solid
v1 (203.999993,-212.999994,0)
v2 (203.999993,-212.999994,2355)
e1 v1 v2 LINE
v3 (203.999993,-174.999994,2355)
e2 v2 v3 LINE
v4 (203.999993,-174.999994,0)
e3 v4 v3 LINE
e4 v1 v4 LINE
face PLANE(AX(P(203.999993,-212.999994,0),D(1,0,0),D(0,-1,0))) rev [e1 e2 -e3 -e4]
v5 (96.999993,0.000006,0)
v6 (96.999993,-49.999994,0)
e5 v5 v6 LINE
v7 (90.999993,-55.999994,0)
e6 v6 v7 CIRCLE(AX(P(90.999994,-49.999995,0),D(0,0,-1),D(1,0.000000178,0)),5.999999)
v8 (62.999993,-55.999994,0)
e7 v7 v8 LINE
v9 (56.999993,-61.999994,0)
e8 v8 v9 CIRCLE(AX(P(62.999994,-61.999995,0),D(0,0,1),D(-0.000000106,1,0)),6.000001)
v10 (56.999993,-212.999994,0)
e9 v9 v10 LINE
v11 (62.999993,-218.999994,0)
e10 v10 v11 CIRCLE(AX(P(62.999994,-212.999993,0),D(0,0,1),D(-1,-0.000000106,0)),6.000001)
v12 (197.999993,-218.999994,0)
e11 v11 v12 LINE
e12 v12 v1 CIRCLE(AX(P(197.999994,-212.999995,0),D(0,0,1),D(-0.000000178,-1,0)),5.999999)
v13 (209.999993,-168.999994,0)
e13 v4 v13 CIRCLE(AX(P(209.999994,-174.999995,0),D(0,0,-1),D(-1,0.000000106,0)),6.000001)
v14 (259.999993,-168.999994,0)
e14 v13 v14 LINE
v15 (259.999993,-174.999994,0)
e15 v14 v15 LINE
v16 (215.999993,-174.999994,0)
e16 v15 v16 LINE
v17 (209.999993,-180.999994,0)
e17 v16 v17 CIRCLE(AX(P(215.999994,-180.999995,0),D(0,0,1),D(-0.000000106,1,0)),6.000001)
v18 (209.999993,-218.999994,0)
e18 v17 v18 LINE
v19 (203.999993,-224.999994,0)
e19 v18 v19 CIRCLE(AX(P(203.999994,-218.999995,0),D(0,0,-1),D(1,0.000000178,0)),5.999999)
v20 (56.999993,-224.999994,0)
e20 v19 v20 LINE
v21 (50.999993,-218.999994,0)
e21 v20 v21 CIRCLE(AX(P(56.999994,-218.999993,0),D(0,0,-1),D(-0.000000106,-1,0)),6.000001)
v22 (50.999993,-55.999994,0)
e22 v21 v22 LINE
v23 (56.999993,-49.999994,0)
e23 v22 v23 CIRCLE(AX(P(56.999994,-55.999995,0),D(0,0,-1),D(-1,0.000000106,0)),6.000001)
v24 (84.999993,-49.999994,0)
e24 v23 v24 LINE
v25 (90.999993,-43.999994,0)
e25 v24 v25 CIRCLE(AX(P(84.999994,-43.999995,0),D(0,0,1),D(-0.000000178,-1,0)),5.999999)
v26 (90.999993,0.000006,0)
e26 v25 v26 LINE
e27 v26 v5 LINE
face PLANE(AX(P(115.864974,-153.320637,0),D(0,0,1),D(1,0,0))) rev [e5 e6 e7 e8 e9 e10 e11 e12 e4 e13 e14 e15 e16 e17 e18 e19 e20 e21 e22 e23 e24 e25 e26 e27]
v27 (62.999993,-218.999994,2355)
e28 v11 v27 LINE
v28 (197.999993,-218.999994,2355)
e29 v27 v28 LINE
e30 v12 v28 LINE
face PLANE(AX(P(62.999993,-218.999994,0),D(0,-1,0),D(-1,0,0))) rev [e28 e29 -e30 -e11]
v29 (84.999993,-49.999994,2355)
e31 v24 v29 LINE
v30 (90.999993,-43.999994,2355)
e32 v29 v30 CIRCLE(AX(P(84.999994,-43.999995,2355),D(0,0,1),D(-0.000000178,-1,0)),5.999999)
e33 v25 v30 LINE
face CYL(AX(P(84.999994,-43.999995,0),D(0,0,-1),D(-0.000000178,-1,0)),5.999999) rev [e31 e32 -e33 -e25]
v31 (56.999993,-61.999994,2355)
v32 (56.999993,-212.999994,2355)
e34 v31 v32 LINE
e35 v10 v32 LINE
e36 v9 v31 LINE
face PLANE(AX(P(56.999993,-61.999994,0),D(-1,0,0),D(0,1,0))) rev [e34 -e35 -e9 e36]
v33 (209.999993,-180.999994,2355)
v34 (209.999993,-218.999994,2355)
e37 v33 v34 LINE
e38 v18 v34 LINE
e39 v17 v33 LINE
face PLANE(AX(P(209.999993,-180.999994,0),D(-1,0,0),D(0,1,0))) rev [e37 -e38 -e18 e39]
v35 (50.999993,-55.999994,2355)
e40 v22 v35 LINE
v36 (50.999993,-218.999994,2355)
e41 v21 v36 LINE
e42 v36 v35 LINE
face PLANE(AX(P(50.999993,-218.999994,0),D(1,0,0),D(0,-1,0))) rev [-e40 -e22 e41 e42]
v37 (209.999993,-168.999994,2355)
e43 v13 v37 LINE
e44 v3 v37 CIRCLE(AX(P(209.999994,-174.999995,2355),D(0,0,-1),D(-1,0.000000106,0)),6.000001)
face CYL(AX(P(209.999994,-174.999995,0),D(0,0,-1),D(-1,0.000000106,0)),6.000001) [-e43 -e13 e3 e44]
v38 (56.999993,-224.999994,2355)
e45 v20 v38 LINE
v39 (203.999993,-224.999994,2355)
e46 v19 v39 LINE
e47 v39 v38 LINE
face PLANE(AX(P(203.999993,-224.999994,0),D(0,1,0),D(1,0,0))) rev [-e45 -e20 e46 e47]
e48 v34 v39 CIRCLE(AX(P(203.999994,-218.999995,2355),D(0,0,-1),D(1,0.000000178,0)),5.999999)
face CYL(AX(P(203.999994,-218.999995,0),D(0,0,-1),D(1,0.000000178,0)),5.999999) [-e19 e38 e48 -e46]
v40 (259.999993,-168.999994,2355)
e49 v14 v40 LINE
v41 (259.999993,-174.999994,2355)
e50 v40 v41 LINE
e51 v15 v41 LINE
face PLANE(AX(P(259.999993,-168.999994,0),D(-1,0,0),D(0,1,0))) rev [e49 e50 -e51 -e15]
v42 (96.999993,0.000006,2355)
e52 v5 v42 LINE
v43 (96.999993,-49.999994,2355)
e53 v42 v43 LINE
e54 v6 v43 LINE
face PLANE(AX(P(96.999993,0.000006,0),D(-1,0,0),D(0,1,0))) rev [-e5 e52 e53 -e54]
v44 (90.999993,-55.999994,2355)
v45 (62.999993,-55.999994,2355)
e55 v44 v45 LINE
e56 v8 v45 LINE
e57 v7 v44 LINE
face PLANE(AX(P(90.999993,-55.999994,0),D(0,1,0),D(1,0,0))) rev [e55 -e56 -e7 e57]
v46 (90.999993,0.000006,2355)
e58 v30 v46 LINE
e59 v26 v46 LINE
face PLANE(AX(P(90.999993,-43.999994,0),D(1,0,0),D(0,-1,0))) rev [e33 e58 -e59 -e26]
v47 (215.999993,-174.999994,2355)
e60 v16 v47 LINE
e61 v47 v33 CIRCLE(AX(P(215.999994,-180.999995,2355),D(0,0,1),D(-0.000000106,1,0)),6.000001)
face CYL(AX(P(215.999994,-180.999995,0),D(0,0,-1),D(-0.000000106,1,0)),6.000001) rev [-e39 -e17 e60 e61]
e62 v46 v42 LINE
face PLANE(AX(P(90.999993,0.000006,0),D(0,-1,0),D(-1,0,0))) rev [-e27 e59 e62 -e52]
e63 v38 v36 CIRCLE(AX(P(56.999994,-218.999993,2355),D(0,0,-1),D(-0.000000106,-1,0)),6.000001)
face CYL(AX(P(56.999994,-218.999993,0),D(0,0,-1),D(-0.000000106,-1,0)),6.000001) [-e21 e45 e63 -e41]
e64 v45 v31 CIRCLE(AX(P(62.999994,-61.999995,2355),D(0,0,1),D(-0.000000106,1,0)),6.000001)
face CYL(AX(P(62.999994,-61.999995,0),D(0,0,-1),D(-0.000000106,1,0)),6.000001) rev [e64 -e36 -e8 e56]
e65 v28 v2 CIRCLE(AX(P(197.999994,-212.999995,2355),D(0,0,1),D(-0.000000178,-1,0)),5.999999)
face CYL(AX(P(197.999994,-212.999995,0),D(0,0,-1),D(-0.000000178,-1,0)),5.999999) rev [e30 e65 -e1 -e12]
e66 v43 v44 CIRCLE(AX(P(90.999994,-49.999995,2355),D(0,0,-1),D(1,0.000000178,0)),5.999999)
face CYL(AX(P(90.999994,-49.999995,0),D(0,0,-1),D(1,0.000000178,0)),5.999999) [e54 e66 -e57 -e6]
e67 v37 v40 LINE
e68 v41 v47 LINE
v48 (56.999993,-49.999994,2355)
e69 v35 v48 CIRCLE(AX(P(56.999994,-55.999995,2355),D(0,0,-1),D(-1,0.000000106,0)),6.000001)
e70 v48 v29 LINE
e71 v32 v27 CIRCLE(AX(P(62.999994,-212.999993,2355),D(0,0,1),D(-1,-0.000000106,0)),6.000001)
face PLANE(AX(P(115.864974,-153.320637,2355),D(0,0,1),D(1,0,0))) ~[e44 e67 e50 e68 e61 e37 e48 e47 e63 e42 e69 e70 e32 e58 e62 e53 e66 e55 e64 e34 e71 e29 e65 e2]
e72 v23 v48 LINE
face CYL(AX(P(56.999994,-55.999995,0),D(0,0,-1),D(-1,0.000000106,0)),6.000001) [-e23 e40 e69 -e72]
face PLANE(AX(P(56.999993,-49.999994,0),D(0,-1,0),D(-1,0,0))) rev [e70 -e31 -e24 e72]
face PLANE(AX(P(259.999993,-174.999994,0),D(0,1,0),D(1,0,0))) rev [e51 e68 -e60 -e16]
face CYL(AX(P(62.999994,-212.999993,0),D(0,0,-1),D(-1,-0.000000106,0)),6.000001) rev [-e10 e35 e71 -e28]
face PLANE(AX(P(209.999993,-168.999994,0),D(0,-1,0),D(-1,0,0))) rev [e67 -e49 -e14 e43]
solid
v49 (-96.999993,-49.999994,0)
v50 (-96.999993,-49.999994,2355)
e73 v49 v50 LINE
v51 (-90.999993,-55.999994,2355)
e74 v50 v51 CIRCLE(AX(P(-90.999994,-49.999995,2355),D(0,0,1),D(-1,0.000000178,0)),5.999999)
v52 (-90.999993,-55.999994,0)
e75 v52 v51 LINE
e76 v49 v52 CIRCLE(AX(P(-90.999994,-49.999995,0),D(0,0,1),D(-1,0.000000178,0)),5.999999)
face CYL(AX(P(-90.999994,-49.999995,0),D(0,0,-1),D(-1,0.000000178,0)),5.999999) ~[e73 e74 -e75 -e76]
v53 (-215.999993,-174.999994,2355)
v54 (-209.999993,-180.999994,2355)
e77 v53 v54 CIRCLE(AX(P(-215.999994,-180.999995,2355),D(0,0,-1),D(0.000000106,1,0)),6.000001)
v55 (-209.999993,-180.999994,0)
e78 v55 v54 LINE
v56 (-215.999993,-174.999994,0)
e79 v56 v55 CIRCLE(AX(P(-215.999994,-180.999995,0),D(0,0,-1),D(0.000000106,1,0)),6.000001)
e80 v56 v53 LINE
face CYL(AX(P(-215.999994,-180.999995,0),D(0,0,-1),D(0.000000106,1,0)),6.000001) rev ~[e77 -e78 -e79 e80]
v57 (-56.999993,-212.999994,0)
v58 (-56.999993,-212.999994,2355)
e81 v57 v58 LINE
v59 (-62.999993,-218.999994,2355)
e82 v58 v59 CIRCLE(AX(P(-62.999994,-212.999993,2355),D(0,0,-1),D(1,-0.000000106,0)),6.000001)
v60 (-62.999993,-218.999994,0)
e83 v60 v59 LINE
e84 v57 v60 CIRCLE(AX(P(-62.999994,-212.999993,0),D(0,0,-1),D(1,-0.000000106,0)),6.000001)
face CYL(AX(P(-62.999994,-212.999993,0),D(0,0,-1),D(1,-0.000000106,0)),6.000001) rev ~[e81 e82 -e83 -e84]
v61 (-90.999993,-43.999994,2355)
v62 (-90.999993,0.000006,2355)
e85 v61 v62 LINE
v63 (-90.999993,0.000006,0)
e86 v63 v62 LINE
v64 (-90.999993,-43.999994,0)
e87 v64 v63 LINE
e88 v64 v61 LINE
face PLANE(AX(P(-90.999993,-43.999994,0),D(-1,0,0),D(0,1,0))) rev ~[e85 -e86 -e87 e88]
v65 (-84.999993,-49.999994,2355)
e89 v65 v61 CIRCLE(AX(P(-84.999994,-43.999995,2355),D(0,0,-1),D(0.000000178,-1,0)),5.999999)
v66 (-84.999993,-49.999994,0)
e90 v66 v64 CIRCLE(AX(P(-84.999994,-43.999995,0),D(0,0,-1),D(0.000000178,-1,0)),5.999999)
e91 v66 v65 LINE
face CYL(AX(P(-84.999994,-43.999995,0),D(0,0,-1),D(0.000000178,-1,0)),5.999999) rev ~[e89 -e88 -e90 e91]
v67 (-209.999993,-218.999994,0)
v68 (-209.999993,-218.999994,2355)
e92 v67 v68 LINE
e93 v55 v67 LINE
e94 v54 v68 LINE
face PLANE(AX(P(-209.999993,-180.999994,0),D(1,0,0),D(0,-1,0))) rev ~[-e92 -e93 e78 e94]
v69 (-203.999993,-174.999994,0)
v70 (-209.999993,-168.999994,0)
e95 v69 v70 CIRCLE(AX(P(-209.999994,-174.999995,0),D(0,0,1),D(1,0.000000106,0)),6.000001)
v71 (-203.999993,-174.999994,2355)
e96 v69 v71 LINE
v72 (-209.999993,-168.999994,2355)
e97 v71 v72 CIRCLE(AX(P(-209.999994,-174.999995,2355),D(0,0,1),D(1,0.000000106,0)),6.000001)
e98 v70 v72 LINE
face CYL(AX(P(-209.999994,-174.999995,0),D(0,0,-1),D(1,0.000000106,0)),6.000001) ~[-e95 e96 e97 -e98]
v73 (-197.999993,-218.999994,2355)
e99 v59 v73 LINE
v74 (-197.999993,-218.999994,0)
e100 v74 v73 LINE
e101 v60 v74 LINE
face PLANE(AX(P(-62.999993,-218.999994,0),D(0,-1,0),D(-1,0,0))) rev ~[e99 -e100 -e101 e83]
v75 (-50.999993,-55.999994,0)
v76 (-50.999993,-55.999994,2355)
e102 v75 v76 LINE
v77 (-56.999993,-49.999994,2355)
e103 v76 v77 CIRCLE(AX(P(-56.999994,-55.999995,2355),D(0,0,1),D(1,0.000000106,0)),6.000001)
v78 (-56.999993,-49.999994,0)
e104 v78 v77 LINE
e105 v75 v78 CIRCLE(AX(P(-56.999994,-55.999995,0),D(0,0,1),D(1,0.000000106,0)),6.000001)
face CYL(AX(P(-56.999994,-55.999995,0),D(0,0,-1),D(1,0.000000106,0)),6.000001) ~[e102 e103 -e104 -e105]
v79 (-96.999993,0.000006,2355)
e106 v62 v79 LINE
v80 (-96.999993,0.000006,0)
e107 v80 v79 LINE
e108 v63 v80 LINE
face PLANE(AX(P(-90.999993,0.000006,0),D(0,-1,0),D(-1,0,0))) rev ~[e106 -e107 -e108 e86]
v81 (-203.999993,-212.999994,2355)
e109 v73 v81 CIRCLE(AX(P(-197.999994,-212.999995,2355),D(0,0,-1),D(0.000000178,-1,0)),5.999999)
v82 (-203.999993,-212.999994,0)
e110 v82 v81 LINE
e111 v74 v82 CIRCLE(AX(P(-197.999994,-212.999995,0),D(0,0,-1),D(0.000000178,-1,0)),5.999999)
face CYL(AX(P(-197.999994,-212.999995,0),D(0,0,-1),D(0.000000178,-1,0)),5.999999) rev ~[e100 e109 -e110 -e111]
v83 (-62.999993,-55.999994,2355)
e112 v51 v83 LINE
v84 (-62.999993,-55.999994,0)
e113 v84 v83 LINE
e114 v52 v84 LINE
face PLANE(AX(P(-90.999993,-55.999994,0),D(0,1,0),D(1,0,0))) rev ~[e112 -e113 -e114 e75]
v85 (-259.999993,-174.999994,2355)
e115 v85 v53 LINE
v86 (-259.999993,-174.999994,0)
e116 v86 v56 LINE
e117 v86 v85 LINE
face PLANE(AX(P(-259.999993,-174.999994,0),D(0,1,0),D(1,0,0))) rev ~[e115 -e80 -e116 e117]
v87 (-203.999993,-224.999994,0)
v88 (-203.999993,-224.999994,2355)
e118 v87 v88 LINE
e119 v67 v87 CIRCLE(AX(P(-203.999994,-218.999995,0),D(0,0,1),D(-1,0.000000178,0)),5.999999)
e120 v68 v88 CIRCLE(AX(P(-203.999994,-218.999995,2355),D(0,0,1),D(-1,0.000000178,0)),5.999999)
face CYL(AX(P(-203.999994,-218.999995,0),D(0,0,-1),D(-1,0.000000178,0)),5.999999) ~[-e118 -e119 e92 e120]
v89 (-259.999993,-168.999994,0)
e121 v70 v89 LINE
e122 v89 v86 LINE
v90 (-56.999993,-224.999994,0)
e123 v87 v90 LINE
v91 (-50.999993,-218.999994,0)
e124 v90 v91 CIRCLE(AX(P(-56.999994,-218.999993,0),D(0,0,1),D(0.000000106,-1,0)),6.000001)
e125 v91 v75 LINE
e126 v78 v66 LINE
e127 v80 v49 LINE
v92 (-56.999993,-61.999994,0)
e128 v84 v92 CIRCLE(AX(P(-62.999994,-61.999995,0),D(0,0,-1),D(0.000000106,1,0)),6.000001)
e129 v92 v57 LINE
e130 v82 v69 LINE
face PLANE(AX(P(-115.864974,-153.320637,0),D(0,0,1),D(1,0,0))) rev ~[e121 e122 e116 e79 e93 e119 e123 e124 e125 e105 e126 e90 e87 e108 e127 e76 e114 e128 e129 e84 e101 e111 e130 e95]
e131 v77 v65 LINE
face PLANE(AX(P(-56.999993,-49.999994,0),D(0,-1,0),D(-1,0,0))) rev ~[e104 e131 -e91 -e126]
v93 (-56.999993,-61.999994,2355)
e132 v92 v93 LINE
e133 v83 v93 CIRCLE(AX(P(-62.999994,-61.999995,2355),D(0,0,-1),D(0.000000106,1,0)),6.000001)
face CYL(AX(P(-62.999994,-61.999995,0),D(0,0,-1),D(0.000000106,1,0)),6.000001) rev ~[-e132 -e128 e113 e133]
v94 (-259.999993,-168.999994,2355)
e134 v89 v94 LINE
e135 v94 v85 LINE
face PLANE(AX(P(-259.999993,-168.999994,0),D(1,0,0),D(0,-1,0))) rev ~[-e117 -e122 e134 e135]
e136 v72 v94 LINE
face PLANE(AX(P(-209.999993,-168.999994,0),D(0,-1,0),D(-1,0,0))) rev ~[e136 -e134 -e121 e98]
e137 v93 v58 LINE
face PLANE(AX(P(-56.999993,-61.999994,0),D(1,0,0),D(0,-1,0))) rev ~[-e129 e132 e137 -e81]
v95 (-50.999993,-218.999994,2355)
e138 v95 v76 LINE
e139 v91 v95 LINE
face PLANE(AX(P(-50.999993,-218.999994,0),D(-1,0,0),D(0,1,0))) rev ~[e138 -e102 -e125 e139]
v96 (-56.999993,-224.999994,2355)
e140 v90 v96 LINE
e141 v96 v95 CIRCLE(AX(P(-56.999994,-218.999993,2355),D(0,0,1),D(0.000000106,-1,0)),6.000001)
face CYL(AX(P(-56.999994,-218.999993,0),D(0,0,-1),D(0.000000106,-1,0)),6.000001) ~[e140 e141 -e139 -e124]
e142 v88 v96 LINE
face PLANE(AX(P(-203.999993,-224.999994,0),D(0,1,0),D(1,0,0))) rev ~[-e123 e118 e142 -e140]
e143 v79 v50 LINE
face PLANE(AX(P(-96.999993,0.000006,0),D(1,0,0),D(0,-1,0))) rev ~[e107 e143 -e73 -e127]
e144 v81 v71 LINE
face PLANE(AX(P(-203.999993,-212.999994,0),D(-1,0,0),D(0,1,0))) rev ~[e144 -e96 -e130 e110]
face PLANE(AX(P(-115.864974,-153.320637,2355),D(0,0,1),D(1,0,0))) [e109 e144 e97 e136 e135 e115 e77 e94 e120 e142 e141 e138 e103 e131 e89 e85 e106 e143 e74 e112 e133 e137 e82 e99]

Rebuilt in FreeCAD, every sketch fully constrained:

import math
import FreeCAD as App
import Part
import Sketcher

V = App.Vector

doc = App.newDocument("Part")
body = doc.addObject("PartDesign::Body", "Body")

sketch1 = body.newObject("Sketcher::SketchObject", "Sketch")
sketch1.AttachmentSupport = (doc.getObject("XY_Plane"), [""])
sketch1.MapMode = "FlatFace"
sketch1.addGeometry(Part.LineSegment(V(-91, -44, 0), V(-91, 0, 0)), False)
sketch1.addGeometry(Part.LineSegment(V(-91, 0, 0), V(-97, 0, 0)), False)
sketch1.addGeometry(Part.LineSegment(V(-97, 0, 0), V(-97, -50, 0)), False)
sketch1.addGeometry(Part.ArcOfCircle(Part.Circle(V(-91, -50, 0), V(0, 0, 1), 6), math.radians(180), math.radians(270)), False)
sketch1.addGeometry(Part.LineSegment(V(-91, -56, 0), V(-63, -56, 0)), False)
sketch1.addGeometry(Part.ArcOfCircle(Part.Circle(V(-63, -62, 0), V(0, 0, 1), 6), math.radians(0), math.radians(90)), False)
sketch1.addGeometry(Part.LineSegment(V(-57, -62, 0), V(-57, -213, 0)), False)
sketch1.addGeometry(Part.ArcOfCircle(Part.Circle(V(-63, -213, 0), V(0, 0, 1), 6), math.radians(-90), math.radians(0)), False)
sketch1.addGeometry(Part.LineSegment(V(-63, -219, 0), V(-198, -219, 0)), False)
sketch1.addGeometry(Part.ArcOfCircle(Part.Circle(V(-198, -213, 0), V(0, 0, 1), 6), math.radians(180), math.radians(270)), False)
sketch1.addGeometry(Part.LineSegment(V(-204, -213, 0), V(-204, -175, 0)), False)
sketch1.addGeometry(Part.ArcOfCircle(Part.Circle(V(-210, -175, 0), V(0, 0, 1), 6), math.radians(0), math.radians(90)), False)
sketch1.addGeometry(Part.LineSegment(V(-210, -169, 0), V(-260, -169, 0)), False)
sketch1.addGeometry(Part.LineSegment(V(-260, -169, 0), V(-260, -175, 0)), False)
sketch1.addGeometry(Part.LineSegment(V(-260, -175, 0), V(-216, -175, 0)), False)
sketch1.addGeometry(Part.ArcOfCircle(Part.Circle(V(-216, -181, 0), V(0, 0, 1), 6), math.radians(0), math.radians(90)), False)
sketch1.addGeometry(Part.LineSegment(V(-210, -181, 0), V(-210, -219, 0)), False)
sketch1.addGeometry(Part.ArcOfCircle(Part.Circle(V(-204, -219, 0), V(0, 0, 1), 6), math.radians(180), math.radians(270)), False)
sketch1.addGeometry(Part.LineSegment(V(-204, -225, 0), V(-57, -225, 0)), False)
sketch1.addGeometry(Part.ArcOfCircle(Part.Circle(V(-57, -219, 0), V(0, 0, 1), 6), math.radians(-90), math.radians(0)), False)
sketch1.addGeometry(Part.LineSegment(V(-51, -219, 0), V(-51, -56, 0)), False)
sketch1.addGeometry(Part.ArcOfCircle(Part.Circle(V(-57, -56, 0), V(0, 0, 1), 6), math.radians(0), math.radians(90)), False)
sketch1.addGeometry(Part.LineSegment(V(-57, -50, 0), V(-85, -50, 0)), False)
sketch1.addGeometry(Part.ArcOfCircle(Part.Circle(V(-85, -44, 0), V(0, 0, 1), 6), math.radians(180), math.radians(270)), False)
sketch1.addConstraint(Sketcher.Constraint("Coincident", 0, 2, 1, 1))
sketch1.addConstraint(Sketcher.Constraint("Coincident", 1, 2, 2, 1))
sketch1.addConstraint(Sketcher.Constraint("Tangent", 2, 2, 3, 1))
sketch1.addConstraint(Sketcher.Constraint("Tangent", 3, 2, 4, 1))
sketch1.addConstraint(Sketcher.Constraint("Tangent", 4, 2, 5, 2))
sketch1.addConstraint(Sketcher.Constraint("Tangent", 5, 1, 6, 1))
sketch1.addConstraint(Sketcher.Constraint("Tangent", 6, 2, 7, 2))
sketch1.addConstraint(Sketcher.Constraint("Tangent", 7, 1, 8, 1))
sketch1.addConstraint(Sketcher.Constraint("Tangent", 8, 2, 9, 2))
sketch1.addConstraint(Sketcher.Constraint("Tangent", 9, 1, 10, 1))
sketch1.addConstraint(Sketcher.Constraint("Tangent", 10, 2, 11, 1))
sketch1.addConstraint(Sketcher.Constraint("Tangent", 11, 2, 12, 1))
sketch1.addConstraint(Sketcher.Constraint("Coincident", 12, 2, 13, 1))
sketch1.addConstraint(Sketcher.Constraint("Coincident", 13, 2, 14, 1))
sketch1.addConstraint(Sketcher.Constraint("Tangent", 14, 2, 15, 2))
sketch1.addConstraint(Sketcher.Constraint("Tangent", 15, 1, 16, 1))
sketch1.addConstraint(Sketcher.Constraint("Tangent", 16, 2, 17, 1))
sketch1.addConstraint(Sketcher.Constraint("Tangent", 17, 2, 18, 1))
sketch1.addConstraint(Sketcher.Constraint("Tangent", 18, 2, 19, 1))
sketch1.addConstraint(Sketcher.Constraint("Tangent", 19, 2, 20, 1))
sketch1.addConstraint(Sketcher.Constraint("Tangent", 20, 2, 21, 1))
sketch1.addConstraint(Sketcher.Constraint("Tangent", 21, 2, 22, 1))
sketch1.addConstraint(Sketcher.Constraint("Tangent", 22, 2, 23, 2))
sketch1.addConstraint(Sketcher.Constraint("Tangent", 23, 1, 0, 1))
sketch1.addConstraint(Sketcher.Constraint("Vertical", 0))
sketch1.addConstraint(Sketcher.Constraint("Horizontal", 1))
sketch1.addConstraint(Sketcher.Constraint("Vertical", 2))
sketch1.addConstraint(Sketcher.Constraint("Horizontal", 4))
sketch1.addConstraint(Sketcher.Constraint("Vertical", 6))
sketch1.addConstraint(Sketcher.Constraint("Horizontal", 8))
sketch1.addConstraint(Sketcher.Constraint("Vertical", 10))
sketch1.addConstraint(Sketcher.Constraint("Horizontal", 12))
sketch1.addConstraint(Sketcher.Constraint("Vertical", 13))
sketch1.addConstraint(Sketcher.Constraint("Horizontal", 14))
sketch1.addConstraint(Sketcher.Constraint("Vertical", 16))
sketch1.addConstraint(Sketcher.Constraint("Horizontal", 18))
sketch1.addConstraint(Sketcher.Constraint("Vertical", 20))
sketch1.addConstraint(Sketcher.Constraint("Horizontal", 22))
sketch1.addConstraint(Sketcher.Constraint("Equal", 3, 5))
sketch1.addConstraint(Sketcher.Constraint("Equal", 5, 7))
sketch1.addConstraint(Sketcher.Constraint("Equal", 7, 9))
sketch1.addConstraint(Sketcher.Constraint("Equal", 9, 11))
sketch1.addConstraint(Sketcher.Constraint("Equal", 11, 15))
sketch1.addConstraint(Sketcher.Constraint("Equal", 15, 17))
sketch1.addConstraint(Sketcher.Constraint("Equal", 17, 19))
sketch1.addConstraint(Sketcher.Constraint("Equal", 19, 21))
sketch1.addConstraint(Sketcher.Constraint("Equal", 21, 23))
sketch1.addConstraint(Sketcher.Constraint("Horizontal", 21, 3, 3, 2))
sketch1.addConstraint(Sketcher.Constraint("Horizontal", 19, 3, 7, 1))
sketch1.addConstraint(Sketcher.Constraint("Horizontal", 10, 2, 13, 2))
sketch1.addConstraint(Sketcher.Constraint("Vertical", 3, 3, 0, 2))
sketch1.addConstraint(Sketcher.Constraint("Vertical", 21, 3, 5, 1))
sketch1.addConstraint(Sketcher.Constraint("Vertical", 17, 3, 9, 1))
sketch1.addConstraint(Sketcher.Constraint("Equal", 14, 0))
sketch1.addConstraint(Sketcher.Constraint("Radius", 3, 5.999999))
sketch1.addConstraint(Sketcher.Constraint("DistanceX", 4, 1, 4, 2, 28.0))
sketch1.addConstraint(Sketcher.Constraint("DistanceX", 8, 2, 8, 1, 135.0))
sketch1.addConstraint(Sketcher.Constraint("DistanceX", 12, 2, 12, 1, 50.0))
sketch1.addConstraint(Sketcher.Constraint("DistanceY", 6, 2, 6, 1, 151.0))
sketch1.addConstraint(Sketcher.Constraint("DistanceY", 10, 1, 10, 2, 38.0))
sketch1.addConstraint(Sketcher.Constraint("DistanceX", 3, 3, -1, 1, 90.999994))
sketch1.addConstraint(Sketcher.Constraint("DistanceY", 3, 3, -1, 1, 49.999995))
pad1 = body.newObject("PartDesign::Pad", "Pad")
pad1.Profile = sketch1
pad1.Length = 2355
body2 = doc.addObject("PartDesign::Body", "Body001")
doc.recompute()

mirroring = doc.addObject("Part::Mirroring", "Mirroring")
mirroring.Source = body
mirroring.Base = V(0, 0, 0)
mirroring.Normal = V(1, 0, 0)
body2.BaseFeature = mirroring
doc.recompute()
mirroring.Visibility = False

doc.recompute()
